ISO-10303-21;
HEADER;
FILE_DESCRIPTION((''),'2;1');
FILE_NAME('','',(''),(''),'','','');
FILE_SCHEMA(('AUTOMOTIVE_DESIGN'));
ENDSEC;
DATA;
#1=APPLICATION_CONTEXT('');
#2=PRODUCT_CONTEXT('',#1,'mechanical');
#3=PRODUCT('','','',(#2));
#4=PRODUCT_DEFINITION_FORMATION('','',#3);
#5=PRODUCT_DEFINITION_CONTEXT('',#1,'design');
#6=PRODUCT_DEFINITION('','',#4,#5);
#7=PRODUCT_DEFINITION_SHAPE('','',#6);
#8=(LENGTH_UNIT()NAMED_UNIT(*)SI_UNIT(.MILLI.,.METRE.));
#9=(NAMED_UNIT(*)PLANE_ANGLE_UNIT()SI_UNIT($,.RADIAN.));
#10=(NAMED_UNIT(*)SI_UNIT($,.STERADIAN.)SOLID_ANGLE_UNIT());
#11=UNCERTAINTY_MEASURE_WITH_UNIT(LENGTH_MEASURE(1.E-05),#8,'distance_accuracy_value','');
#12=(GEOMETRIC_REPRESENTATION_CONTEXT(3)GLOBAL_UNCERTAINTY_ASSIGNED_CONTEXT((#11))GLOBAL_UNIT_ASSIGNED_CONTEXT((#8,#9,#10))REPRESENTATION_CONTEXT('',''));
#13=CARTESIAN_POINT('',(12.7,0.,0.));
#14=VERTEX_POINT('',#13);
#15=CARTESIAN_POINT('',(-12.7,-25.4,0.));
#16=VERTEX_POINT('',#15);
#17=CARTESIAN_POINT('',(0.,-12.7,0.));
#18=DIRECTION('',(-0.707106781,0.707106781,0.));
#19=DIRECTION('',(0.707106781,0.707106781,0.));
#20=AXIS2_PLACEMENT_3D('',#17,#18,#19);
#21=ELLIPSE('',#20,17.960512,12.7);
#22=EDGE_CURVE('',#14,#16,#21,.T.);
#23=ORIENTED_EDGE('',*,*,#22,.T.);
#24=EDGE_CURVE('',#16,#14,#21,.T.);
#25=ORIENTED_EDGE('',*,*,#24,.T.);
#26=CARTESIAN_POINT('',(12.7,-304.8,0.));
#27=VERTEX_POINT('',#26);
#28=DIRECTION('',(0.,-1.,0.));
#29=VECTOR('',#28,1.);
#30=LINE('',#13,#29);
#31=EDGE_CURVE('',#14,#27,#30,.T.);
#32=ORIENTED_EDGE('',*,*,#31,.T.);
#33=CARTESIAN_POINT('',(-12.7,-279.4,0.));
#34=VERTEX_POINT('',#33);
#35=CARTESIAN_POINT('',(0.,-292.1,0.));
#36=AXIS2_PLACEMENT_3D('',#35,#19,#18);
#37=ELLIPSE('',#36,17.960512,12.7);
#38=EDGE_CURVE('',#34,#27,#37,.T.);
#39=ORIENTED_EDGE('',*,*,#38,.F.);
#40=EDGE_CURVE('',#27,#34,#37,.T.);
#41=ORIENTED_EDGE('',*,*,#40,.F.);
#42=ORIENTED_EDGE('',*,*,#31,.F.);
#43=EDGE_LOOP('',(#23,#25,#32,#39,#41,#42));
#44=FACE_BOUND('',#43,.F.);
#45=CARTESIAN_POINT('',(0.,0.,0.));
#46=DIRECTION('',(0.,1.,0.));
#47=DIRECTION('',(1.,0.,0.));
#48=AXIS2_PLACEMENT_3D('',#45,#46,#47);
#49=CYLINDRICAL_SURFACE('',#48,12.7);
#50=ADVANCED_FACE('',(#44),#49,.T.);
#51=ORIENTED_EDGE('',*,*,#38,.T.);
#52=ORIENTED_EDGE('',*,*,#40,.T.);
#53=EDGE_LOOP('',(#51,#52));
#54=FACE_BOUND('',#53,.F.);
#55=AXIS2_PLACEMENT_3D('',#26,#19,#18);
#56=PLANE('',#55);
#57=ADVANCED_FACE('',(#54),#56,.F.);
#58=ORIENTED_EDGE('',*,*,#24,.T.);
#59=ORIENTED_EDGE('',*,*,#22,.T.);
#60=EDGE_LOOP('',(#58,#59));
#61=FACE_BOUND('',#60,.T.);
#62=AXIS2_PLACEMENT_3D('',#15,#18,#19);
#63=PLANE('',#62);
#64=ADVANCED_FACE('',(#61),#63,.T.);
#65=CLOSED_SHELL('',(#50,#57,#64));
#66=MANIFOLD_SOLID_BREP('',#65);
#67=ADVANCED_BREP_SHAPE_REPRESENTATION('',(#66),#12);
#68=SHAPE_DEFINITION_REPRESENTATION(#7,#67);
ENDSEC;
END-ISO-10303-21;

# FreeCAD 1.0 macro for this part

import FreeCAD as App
import Part
import Sketcher
from FreeCAD import Vector
Q = App.Units.Quantity


def add_polygon(sketch, points):
    """Adds a closed chain of lines whose ends are joined by coincident constraints."""
    first, n = sketch.GeometryCount, len(points)
    for a, b in zip(points, points[1:] + points[:1]):
        sketch.addGeometry(Part.LineSegment(App.Vector(*a, 0), App.Vector(*b, 0)), False)
    for i in range(n):
        sketch.addConstraint(Sketcher.Constraint("Coincident", first + i, 2, first + (i + 1) % n, 1))

doc = App.newDocument("Part")
body = doc.addObject("PartDesign::Body", "Body")

# Sketch on XZ plane
sketch1 = body.newObject("Sketcher::SketchObject", "Sketch")
sketch1.AttachmentSupport = (doc.getObject("XZ_Plane"), [""])
sketch1.MapMode = "FlatFace"
sketch1.addGeometry(Part.Circle(Vector(0, 0, 0), Vector(0, 0, 1), 13), False)
sketch1.addConstraint(Sketcher.Constraint("Coincident", 0, 3, -1, 1))
sketch1.addConstraint(Sketcher.Constraint("Diameter", 0, Q("1 in")))
pad1 = body.newObject("PartDesign::Pad", "Pad")
pad1.Profile = sketch1
pad1.Length = Q("12 in")

# Sketch on XY plane
sketch2 = body.newObject("Sketcher::SketchObject", "Sketch001")
sketch2.AttachmentSupport = (doc.getObject("XY_Plane"), [""])
sketch2.MapMode = "FlatFace"
add_polygon(sketch2, [(-13, -25), (13, 0), (-13, 0)])  # lines 0-2
add_polygon(sketch2, [(-13, -305), (13, -305), (-13, -279)])  # lines 3-5
sketch2.addConstraint(Sketcher.Constraint("Horizontal", 1))
sketch2.addConstraint(Sketcher.Constraint("Vertical", 2))
sketch2.addConstraint(Sketcher.Constraint("Horizontal", 3))
sketch2.addConstraint(Sketcher.Constraint("Vertical", 5))
sketch2.addConstraint(Sketcher.Constraint("Symmetric", 0, 2, 1, 2, -1, 1))
sketch2.addConstraint(Sketcher.Constraint("Perpendicular", 0, 4))
sketch2.addConstraint(Sketcher.Constraint("Vertical", 0, 2, 3, 2))
sketch2.addConstraint(Sketcher.Constraint("Vertical", 2, 2, 4, 2))
sketch2.addConstraint(Sketcher.Constraint("Equal", 3, 2))
sketch2.addConstraint(Sketcher.Constraint("DistanceX", 1, 2, 1, 1, Q("1 in")))
sketch2.addConstraint(Sketcher.Constraint("DistanceY", 3, 2, -1, 1, Q("12 in")))
pocket1 = body.newObject("PartDesign::Pocket", "Pocket")
pocket1.Profile = sketch2
pocket1.Length = Q("1.9 in")
pocket1.Midplane = True

doc.recompute()
